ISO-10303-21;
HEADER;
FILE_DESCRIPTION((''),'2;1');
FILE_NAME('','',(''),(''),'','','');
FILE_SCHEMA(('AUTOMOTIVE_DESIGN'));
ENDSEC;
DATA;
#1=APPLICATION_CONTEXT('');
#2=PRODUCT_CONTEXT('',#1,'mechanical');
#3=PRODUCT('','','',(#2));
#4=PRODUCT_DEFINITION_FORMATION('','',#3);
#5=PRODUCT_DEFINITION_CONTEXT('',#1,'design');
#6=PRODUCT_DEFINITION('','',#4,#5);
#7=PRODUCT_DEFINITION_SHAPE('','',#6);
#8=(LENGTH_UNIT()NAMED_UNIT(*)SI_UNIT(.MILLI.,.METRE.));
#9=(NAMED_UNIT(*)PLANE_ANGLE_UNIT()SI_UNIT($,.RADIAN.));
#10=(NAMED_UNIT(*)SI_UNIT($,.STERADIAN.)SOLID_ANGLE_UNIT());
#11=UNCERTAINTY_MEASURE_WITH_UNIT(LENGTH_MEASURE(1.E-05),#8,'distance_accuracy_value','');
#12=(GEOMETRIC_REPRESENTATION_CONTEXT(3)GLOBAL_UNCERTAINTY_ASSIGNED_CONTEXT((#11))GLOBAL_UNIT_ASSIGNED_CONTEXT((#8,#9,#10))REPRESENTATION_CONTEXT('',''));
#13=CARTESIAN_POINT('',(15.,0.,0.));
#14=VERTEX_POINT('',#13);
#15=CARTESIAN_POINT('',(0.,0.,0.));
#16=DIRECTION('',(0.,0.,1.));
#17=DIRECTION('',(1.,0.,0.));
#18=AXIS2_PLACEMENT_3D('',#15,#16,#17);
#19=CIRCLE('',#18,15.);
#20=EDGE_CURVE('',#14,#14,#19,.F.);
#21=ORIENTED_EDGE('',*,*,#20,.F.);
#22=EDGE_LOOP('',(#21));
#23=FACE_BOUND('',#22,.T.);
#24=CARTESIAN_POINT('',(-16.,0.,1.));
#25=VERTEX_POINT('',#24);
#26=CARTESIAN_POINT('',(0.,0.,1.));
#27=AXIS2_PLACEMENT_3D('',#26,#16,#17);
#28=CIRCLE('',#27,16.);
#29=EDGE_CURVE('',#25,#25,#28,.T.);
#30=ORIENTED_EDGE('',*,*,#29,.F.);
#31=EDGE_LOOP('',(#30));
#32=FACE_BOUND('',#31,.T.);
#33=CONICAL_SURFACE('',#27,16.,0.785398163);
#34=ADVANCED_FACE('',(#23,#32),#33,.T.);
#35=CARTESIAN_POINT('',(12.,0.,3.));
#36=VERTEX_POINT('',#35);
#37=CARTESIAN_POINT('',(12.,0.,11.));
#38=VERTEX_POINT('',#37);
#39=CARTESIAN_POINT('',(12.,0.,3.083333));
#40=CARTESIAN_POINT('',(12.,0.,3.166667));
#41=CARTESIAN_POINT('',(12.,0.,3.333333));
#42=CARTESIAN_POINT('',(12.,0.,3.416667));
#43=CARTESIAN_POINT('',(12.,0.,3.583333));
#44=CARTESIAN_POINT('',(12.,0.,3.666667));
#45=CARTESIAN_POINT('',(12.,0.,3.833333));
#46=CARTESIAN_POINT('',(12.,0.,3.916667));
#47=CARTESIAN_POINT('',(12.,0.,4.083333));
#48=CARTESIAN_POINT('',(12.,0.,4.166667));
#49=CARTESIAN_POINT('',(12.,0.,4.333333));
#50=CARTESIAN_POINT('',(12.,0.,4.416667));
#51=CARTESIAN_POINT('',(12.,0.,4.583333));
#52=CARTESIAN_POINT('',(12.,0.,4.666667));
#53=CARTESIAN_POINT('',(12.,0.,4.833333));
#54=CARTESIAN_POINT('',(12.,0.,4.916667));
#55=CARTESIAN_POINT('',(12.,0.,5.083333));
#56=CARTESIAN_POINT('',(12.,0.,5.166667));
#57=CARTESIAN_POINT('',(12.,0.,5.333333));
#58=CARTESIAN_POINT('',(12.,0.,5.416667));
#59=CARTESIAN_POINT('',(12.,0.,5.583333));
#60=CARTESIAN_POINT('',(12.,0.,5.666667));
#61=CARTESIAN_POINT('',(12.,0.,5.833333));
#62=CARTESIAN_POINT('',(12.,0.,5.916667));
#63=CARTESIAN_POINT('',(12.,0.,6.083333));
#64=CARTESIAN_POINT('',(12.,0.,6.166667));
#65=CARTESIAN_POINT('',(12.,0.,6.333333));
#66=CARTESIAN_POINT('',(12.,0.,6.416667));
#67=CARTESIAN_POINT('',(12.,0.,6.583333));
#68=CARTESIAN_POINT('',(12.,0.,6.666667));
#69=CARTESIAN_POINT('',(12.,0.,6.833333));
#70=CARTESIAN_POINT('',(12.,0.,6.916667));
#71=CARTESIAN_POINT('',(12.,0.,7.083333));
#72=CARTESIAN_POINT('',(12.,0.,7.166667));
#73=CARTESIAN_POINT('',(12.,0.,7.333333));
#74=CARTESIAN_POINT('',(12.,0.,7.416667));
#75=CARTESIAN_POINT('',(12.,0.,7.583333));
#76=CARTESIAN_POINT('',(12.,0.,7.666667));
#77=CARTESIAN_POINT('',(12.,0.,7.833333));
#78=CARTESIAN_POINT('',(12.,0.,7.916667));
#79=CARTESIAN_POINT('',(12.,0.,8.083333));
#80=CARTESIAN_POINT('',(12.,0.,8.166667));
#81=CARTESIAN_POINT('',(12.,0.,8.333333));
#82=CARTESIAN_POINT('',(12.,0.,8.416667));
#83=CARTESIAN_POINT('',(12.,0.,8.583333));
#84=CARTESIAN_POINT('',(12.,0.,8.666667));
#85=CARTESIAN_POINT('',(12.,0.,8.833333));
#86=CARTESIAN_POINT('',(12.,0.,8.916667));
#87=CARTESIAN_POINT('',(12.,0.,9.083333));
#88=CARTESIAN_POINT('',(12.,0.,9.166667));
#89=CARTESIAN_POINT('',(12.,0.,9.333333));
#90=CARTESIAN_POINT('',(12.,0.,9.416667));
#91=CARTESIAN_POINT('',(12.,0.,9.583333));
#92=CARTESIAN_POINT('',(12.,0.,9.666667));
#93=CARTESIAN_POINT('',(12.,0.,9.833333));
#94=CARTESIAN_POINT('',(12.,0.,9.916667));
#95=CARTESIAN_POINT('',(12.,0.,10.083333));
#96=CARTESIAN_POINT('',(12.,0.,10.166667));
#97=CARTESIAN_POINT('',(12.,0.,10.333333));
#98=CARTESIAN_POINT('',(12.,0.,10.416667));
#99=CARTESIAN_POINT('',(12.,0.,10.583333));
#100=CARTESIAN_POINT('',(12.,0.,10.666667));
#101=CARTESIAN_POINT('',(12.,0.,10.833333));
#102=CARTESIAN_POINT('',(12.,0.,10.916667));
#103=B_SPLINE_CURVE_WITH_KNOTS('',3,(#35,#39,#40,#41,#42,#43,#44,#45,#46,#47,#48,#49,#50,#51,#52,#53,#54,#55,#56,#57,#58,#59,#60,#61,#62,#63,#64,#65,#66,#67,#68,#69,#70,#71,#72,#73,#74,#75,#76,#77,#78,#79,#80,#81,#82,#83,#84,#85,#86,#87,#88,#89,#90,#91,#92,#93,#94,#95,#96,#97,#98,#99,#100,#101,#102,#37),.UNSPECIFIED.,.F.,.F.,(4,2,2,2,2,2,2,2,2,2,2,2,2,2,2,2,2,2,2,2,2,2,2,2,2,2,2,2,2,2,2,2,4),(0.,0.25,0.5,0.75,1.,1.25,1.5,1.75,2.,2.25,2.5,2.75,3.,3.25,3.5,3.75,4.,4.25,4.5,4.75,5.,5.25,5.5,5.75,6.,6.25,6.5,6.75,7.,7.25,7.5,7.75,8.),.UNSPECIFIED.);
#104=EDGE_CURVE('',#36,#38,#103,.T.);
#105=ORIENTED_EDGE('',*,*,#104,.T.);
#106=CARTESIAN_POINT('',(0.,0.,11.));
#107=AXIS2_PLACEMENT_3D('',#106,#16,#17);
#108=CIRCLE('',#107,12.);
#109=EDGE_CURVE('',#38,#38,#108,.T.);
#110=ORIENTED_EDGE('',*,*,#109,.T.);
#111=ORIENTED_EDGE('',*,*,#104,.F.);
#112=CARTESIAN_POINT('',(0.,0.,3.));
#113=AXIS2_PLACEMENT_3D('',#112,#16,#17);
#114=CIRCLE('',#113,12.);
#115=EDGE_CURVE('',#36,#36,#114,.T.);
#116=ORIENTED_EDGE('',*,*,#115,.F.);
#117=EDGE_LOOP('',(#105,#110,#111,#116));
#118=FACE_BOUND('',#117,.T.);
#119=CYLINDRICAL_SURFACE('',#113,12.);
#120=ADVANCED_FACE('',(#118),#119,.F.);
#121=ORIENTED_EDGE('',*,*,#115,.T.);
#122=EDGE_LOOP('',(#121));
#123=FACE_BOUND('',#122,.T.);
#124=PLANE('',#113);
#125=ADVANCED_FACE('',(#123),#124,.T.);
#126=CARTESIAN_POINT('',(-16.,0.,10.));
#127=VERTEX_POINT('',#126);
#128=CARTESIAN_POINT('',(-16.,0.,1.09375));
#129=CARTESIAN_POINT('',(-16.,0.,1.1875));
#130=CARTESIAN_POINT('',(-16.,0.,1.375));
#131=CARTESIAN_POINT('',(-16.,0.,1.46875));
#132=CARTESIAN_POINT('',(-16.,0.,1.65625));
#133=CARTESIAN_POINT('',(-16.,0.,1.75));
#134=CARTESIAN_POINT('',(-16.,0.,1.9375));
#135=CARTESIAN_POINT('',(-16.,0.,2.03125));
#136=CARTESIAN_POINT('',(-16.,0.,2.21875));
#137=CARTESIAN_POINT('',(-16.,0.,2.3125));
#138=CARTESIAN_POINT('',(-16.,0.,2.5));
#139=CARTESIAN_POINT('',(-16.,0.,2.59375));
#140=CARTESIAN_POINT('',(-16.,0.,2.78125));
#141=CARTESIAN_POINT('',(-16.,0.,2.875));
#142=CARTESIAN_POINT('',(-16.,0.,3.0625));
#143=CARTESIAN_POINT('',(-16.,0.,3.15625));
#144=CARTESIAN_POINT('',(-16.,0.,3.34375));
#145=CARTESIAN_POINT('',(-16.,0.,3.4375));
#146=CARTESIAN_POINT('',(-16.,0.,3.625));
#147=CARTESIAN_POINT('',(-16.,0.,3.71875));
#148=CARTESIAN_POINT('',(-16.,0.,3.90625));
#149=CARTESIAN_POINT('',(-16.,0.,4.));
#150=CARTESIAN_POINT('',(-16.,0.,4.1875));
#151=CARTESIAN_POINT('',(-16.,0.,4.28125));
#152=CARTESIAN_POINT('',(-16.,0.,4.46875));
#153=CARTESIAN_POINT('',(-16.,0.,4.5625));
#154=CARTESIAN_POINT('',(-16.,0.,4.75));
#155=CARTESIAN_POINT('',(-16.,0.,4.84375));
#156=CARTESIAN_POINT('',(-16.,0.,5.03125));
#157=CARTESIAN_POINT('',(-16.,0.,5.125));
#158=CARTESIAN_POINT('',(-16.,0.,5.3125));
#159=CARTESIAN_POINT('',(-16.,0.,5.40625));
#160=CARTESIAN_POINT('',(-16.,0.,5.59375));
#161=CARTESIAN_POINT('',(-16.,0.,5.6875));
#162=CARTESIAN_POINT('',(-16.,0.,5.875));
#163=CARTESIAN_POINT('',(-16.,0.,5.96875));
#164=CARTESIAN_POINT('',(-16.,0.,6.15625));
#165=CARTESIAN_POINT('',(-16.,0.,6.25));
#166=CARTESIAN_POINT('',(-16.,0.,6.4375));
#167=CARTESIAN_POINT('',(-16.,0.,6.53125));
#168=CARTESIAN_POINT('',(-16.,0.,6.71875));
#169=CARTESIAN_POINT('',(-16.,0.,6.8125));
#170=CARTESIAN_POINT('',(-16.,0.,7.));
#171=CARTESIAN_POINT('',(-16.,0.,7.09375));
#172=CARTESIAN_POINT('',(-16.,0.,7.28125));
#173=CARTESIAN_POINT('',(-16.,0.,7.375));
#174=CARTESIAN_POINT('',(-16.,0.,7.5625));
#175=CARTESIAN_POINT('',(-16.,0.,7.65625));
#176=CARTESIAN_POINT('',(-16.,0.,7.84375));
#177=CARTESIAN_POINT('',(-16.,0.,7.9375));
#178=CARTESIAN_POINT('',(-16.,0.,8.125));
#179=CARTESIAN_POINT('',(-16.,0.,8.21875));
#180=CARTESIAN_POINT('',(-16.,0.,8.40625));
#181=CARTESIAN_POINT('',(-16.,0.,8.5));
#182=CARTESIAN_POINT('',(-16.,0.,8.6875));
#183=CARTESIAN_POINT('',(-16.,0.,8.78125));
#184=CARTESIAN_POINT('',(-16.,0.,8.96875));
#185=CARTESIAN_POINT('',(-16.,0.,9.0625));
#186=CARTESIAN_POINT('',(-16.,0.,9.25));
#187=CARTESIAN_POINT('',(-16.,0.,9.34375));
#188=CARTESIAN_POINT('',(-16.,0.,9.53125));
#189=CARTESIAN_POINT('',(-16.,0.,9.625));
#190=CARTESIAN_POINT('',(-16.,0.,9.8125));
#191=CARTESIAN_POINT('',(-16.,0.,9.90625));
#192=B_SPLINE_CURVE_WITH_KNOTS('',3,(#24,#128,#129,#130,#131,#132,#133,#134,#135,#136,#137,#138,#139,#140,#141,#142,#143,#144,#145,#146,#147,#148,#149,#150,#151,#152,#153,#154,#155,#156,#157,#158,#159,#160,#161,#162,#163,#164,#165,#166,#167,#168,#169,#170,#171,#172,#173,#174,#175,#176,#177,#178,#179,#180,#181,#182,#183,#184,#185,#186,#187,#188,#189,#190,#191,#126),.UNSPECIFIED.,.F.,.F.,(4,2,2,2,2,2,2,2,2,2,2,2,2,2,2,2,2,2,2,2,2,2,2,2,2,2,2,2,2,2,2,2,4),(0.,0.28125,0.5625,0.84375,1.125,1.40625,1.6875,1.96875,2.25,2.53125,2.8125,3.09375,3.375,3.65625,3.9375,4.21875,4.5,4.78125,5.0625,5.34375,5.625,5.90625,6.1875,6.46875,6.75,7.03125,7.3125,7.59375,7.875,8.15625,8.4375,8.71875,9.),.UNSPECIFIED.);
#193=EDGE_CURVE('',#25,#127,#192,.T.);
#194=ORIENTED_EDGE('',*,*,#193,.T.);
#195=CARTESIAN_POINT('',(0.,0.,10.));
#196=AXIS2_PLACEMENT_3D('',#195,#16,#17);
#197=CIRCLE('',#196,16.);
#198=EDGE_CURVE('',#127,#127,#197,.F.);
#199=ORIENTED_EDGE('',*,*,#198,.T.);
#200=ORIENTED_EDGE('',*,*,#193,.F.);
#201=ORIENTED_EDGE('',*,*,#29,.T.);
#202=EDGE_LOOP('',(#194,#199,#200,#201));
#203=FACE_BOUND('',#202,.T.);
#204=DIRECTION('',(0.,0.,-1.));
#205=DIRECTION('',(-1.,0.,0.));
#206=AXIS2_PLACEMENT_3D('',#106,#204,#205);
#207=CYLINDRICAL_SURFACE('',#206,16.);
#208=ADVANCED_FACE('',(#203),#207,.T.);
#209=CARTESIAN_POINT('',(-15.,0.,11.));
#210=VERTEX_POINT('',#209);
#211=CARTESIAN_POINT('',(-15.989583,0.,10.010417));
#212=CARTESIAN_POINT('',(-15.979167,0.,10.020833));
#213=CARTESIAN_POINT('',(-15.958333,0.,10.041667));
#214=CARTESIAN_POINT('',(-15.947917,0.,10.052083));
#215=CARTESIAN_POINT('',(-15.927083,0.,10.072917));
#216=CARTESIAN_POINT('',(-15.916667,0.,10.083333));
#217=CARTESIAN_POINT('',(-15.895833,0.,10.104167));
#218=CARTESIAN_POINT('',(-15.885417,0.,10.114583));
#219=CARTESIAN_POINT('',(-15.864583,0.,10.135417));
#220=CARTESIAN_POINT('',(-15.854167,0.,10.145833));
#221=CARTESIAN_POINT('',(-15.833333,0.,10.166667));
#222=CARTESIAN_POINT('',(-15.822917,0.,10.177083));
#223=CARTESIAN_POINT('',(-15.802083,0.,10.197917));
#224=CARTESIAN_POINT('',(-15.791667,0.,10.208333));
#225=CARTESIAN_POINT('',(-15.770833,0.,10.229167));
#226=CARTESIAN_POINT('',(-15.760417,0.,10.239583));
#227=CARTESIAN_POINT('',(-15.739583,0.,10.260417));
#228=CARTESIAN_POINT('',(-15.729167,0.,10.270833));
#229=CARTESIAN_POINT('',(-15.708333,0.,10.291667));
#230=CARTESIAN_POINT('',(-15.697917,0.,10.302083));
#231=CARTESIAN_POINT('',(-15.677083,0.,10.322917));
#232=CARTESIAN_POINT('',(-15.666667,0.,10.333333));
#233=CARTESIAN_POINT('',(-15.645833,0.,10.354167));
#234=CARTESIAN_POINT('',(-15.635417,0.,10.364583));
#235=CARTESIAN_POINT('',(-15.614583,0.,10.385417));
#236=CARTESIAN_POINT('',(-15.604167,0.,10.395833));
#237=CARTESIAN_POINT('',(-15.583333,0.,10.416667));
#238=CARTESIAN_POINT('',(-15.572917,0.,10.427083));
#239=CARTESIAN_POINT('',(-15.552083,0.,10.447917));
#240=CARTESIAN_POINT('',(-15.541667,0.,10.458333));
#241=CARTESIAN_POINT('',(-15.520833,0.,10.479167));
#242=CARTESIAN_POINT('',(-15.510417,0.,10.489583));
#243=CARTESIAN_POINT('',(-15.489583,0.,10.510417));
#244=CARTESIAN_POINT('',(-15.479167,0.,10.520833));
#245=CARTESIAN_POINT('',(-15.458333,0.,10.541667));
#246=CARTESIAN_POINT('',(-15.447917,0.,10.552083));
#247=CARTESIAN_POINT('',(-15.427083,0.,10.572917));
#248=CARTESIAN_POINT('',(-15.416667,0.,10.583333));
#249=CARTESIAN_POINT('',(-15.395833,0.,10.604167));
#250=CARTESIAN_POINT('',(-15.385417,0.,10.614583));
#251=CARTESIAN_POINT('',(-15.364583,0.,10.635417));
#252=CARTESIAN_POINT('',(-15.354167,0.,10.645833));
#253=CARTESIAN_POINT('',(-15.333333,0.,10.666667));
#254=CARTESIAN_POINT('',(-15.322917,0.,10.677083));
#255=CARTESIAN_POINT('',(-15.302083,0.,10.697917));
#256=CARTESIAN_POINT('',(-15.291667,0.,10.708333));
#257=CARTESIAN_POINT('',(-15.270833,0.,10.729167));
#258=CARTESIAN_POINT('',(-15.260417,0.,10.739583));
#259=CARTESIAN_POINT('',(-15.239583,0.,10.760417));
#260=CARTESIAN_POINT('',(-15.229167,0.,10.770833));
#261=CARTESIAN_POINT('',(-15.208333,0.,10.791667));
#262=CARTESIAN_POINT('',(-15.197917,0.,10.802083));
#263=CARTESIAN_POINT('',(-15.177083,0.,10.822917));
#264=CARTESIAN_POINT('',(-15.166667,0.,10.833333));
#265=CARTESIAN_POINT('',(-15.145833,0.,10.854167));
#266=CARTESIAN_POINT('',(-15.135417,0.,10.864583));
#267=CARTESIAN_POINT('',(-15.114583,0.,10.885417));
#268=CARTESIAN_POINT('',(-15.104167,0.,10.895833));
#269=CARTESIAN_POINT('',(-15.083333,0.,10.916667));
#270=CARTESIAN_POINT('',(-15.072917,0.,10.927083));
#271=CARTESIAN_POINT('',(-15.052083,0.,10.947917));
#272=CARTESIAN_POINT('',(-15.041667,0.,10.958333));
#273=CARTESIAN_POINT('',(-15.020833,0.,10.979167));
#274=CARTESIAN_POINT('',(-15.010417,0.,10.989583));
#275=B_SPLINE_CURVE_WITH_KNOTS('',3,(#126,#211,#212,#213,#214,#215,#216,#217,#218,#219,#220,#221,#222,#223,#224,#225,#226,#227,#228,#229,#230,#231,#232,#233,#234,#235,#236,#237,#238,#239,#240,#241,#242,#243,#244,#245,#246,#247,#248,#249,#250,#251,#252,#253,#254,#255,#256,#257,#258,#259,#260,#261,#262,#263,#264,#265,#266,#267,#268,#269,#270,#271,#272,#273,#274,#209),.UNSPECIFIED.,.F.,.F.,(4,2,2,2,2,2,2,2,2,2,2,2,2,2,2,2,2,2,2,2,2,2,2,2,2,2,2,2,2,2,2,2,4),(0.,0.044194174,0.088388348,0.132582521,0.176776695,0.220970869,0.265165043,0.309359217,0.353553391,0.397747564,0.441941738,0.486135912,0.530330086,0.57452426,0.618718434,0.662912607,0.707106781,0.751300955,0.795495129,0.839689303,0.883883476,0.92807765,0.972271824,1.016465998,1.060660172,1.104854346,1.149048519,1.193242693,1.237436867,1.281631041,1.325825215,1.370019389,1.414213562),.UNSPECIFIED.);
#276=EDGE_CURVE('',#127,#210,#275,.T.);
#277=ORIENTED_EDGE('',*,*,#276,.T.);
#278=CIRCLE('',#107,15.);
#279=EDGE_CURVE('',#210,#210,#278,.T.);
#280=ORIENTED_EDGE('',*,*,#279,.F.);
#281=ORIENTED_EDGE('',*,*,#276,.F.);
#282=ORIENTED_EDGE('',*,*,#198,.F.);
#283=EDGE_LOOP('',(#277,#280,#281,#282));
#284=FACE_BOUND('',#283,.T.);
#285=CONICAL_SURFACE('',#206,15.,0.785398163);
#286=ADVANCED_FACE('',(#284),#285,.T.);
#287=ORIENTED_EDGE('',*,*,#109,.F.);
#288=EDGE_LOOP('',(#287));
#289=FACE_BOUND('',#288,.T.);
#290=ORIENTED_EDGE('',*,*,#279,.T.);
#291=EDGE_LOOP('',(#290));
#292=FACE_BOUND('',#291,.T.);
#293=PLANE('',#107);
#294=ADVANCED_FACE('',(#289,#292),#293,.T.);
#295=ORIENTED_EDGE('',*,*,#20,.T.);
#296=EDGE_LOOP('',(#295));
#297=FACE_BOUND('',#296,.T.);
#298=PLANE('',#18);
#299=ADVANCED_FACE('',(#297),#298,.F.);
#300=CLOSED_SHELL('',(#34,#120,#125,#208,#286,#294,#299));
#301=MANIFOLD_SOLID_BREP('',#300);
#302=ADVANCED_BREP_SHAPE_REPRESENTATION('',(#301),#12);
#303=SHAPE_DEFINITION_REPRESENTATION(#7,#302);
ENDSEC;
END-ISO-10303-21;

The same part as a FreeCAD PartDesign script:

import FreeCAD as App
import Part
import Sketcher

V = App.Vector
Q = App.Units.Quantity


def edges_at(feature, points):
    """Names of the edges that pass closest to the given points."""
    edges = feature.Shape.Edges
    near = lambda p: min(range(len(edges)), key=lambda i: edges[i].distToShape(Part.Vertex(*p))[0])
    return sorted({f"Edge{near(p) + 1}" for p in points})

doc = App.newDocument("Part")
body = doc.addObject("PartDesign::Body", "Body")

# Sketch on XY plane
sketch1 = body.newObject("Sketcher::SketchObject", "Sketch")
sketch1.AttachmentSupport = (doc.getObject("XY_Plane"), [""])
sketch1.MapMode = "FlatFace"
sketch1.addGeometry(Part.Circle(V(0, 0, 0), V(0, 0, 1), 16), False)
sketch1.addConstraint([
    Sketcher.Constraint("Coincident", 0, 3, -1, 1),
    Sketcher.Constraint("Diameter", 0, Q("32 mm")),
])
pad1 = body.newObject("PartDesign::Pad", "Pad")
pad1.Profile = sketch1
pad1.Length = 11
doc.recompute()

chamfer = body.newObject("PartDesign::Chamfer", "Chamfer")
chamfer.Base = (pad1, edges_at(pad1, [(-16, 0, 0), (-16, 0, 11)]))
chamfer.Size = 1

# Sketch on XY plane
sketch2 = body.newObject("Sketcher::SketchObject", "Sketch001")
sketch2.AttachmentSupport = (doc.getObject("XY_Plane"), [""])
sketch2.MapMode = "FlatFace"
sketch2.AttachmentOffset = App.Placement(V(0, 0, 11), App.Rotation())
sketch2.addGeometry(Part.Circle(V(0, 0, 0), V(0, 0, 1), 12), False)
sketch2.addConstraint([
    Sketcher.Constraint("Coincident", 0, 3, -1, 1),
    Sketcher.Constraint("Diameter", 0, Q("24 mm")),
])
pocket1 = body.newObject("PartDesign::Pocket", "Pocket")
pocket1.Profile = sketch2
pocket1.Length = 8

doc.recompute()
